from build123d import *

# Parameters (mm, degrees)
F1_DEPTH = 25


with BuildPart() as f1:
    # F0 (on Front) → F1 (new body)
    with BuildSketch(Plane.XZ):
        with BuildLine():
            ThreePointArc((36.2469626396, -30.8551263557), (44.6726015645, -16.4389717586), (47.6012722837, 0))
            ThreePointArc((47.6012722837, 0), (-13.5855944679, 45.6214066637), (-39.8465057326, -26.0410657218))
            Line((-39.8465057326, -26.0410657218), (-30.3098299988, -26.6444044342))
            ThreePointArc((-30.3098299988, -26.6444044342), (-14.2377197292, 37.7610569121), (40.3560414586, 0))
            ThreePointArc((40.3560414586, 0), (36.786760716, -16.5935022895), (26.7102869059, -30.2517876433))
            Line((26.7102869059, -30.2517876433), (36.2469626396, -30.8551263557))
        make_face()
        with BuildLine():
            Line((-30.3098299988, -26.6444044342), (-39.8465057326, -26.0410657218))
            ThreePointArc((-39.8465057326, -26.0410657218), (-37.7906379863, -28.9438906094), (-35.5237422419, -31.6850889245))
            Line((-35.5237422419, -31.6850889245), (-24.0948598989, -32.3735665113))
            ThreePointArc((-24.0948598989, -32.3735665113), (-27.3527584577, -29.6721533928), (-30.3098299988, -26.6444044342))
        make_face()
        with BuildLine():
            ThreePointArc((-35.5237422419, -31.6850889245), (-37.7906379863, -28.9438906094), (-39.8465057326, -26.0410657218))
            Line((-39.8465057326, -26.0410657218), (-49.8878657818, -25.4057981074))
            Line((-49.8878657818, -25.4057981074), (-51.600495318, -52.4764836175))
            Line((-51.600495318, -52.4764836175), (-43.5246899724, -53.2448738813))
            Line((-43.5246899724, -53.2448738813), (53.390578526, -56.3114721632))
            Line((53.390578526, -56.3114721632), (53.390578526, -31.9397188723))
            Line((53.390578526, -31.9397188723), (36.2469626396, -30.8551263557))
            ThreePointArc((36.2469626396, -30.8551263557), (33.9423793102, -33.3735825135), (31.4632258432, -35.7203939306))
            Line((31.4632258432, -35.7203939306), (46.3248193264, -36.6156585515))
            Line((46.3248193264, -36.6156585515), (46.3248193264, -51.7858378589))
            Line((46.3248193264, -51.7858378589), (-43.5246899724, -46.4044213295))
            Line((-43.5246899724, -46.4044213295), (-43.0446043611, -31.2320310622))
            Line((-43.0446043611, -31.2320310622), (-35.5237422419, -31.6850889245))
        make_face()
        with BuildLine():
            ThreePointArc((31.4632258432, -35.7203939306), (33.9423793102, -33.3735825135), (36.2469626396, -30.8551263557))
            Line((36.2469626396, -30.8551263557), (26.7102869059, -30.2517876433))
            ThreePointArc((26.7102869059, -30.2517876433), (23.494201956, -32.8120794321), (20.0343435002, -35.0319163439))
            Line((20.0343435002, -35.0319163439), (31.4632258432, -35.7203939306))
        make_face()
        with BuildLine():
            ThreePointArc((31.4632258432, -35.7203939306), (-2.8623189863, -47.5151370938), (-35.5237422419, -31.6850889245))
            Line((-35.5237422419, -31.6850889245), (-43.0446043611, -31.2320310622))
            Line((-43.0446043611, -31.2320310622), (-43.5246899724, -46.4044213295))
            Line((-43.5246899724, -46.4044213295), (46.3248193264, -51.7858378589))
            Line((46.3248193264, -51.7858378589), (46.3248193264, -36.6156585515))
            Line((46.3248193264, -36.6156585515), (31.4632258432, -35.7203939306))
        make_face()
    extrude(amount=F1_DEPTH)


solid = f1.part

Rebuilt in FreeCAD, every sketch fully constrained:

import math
import FreeCAD as App
import Part
import Sketcher

doc = App.newDocument("Part")
params = doc.addObject("Spreadsheet::Sheet", "Params")
for row, (alias, value) in enumerate([
    ("pad1_length", "25 mm"),
], start=1):
    params.set(f"A{row}", alias)
    params.set(f"B{row}", "=" + value)
    params.setAlias(f"B{row}", alias)

body = doc.addObject("PartDesign::Body", "Body")

sketch1 = body.newObject("Sketcher::SketchObject", "Sketch")
sketch1.AttachmentSupport = (doc.getObject("XZ_Plane"), [""])
sketch1.MapMode = "FlatFace"
sketch1.addGeometry([
    Part.LineSegment(App.Vector(53.390579, -31.939719, 0), App.Vector(36.246963, -30.855126, 0)),
    Part.ArcOfCircle(Part.Circle(App.Vector(0, 0, 0), App.Vector(0, 0, 1), 47.601272), math.radians(-40.405998), math.radians(0)),
    Part.ArcOfCircle(Part.Circle(App.Vector(0, 0, 0), App.Vector(0, 0, 1), 47.601272), math.radians(0), math.radians(213.166001)),
    Part.LineSegment(App.Vector(-39.846506, -26.041066, 0), App.Vector(-49.887866, -25.405798, 0)),
    Part.LineSegment(App.Vector(-49.887866, -25.405798, 0), App.Vector(-51.600495, -52.476484, 0)),
    Part.LineSegment(App.Vector(-51.600495, -52.476484, 0), App.Vector(-43.52469, -53.244874, 0)),
    Part.LineSegment(App.Vector(-43.52469, -53.244874, 0), App.Vector(53.390579, -56.311472, 0)),
    Part.LineSegment(App.Vector(53.390579, -56.311472, 0), App.Vector(53.390579, -31.939719, 0)),
    Part.ArcOfCircle(Part.Circle(App.Vector(0, 0, 0), App.Vector(0, 0, 1), 40.356041), math.radians(-48.557669), math.radians(0)),
    Part.ArcOfCircle(Part.Circle(App.Vector(0, 0, 0), App.Vector(0, 0, 1), 40.356041), math.radians(-60.235265), math.radians(-48.557669)),
    Part.LineSegment(App.Vector(20.034343, -35.031916, 0), App.Vector(31.463226, -35.720394, 0)),
    Part.ArcOfCircle(Part.Circle(App.Vector(0, 0, 0), App.Vector(0, 0, 1), 47.601272), math.radians(-138.268915), math.radians(-48.625766)),
    Part.LineSegment(App.Vector(-35.523742, -31.685089, 0), App.Vector(-24.09486, -32.373567, 0)),
    Part.ArcOfCircle(Part.Circle(App.Vector(0, 0, 0), App.Vector(0, 0, 1), 40.356041), math.radians(-138.682328), math.radians(-126.659415)),
    Part.ArcOfCircle(Part.Circle(App.Vector(0, 0, 0), App.Vector(0, 0, 1), 40.356041), math.radians(0), math.radians(221.317672)),
], False)
sketch1.addConstraint([
    Sketcher.Constraint("Coincident", 0, 2, 1, 1),
    Sketcher.Constraint("Coincident", 1, 2, 2, 1),
    Sketcher.Constraint("Coincident", 2, 2, 3, 1),
    Sketcher.Constraint("Coincident", 3, 2, 4, 1),
    Sketcher.Constraint("Coincident", 4, 2, 5, 1),
    Sketcher.Constraint("Coincident", 5, 2, 6, 1),
    Sketcher.Constraint("Coincident", 6, 2, 7, 1),
    Sketcher.Constraint("Coincident", 7, 2, 0, 1),
    Sketcher.Constraint("Coincident", 8, 1, 9, 2),
    Sketcher.Constraint("Coincident", 9, 1, 10, 1),
    Sketcher.Constraint("Coincident", 10, 2, 11, 2),
    Sketcher.Constraint("Coincident", 11, 1, 12, 1),
    Sketcher.Constraint("Coincident", 12, 2, 13, 2),
    Sketcher.Constraint("Coincident", 13, 1, 14, 2),
    Sketcher.Constraint("Coincident", 14, 1, 8, 2),
    Sketcher.Constraint("Vertical", 7),
    Sketcher.Constraint("Coincident", 1, 3, -1, 1),
    Sketcher.Constraint("Coincident", 2, 3, -1, 1),
    Sketcher.Constraint("Coincident", 8, 3, -1, 1),
    Sketcher.Constraint("Coincident", 9, 3, -1, 1),
    Sketcher.Constraint("Coincident", 11, 3, -1, 1),
    Sketcher.Constraint("Coincident", 13, 3, -1, 1),
    Sketcher.Constraint("Coincident", 14, 3, -1, 1),
    Sketcher.Constraint("PointOnObject", 1, 2, -1),
    Sketcher.Constraint("PointOnObject", 14, 1, -1),
    Sketcher.Constraint("Radius", 8, 40.356041),
    Sketcher.Constraint("Radius", 1, 47.601272),
    Sketcher.Constraint("Radius", 11, 47.601272),
    Sketcher.Constraint("Distance", 10, 11.449601),
    Sketcher.Constraint("Distance", 12, 11.449601),
    Sketcher.Constraint("DistanceY", 3, 2, -1, 1, 25.405798),
    Sketcher.Constraint("DistanceY", 12, 2, 2, 2, 6.332501),
    Sketcher.Constraint("Distance", 0, 17.17789),
    Sketcher.Constraint("Distance", 5, 8.112278),
    Sketcher.Constraint("DistanceY", 7, 1, 7, 2, 24.371753),
    Sketcher.Constraint("DistanceX", 5, 2, -1, 1, 43.52469),
    Sketcher.Constraint("DistanceX", -1, 1, 6, 2, 53.390579),
    Sketcher.Constraint("DistanceY", 7, 2, -1, 1, 31.939719),
    Sketcher.Constraint("DistanceY", 11, 1, -1, 1, 31.685089),
    Sketcher.Constraint("DistanceX", 13, 1, -1, 1, 30.30983),
    Sketcher.Constraint("DistanceX", 3, 2, 2, 2, 10.04136),
    Sketcher.Constraint("DistanceX", 4, 2, 3, 2, 1.71263),
    Sketcher.Constraint("DistanceY", 5, 2, 2, 2, 27.203808),
    Sketcher.Constraint("DistanceY", 0, 2, 8, 1, 0.603339),
    Sketcher.Constraint("DistanceY", 9, 1, 8, 1, 4.780129),
])
pad1 = body.newObject("PartDesign::Pad", "Pad")
pad1.Profile = sketch1
pad1.setExpression("Length", "Params.pad1_length")

doc.recompute()
